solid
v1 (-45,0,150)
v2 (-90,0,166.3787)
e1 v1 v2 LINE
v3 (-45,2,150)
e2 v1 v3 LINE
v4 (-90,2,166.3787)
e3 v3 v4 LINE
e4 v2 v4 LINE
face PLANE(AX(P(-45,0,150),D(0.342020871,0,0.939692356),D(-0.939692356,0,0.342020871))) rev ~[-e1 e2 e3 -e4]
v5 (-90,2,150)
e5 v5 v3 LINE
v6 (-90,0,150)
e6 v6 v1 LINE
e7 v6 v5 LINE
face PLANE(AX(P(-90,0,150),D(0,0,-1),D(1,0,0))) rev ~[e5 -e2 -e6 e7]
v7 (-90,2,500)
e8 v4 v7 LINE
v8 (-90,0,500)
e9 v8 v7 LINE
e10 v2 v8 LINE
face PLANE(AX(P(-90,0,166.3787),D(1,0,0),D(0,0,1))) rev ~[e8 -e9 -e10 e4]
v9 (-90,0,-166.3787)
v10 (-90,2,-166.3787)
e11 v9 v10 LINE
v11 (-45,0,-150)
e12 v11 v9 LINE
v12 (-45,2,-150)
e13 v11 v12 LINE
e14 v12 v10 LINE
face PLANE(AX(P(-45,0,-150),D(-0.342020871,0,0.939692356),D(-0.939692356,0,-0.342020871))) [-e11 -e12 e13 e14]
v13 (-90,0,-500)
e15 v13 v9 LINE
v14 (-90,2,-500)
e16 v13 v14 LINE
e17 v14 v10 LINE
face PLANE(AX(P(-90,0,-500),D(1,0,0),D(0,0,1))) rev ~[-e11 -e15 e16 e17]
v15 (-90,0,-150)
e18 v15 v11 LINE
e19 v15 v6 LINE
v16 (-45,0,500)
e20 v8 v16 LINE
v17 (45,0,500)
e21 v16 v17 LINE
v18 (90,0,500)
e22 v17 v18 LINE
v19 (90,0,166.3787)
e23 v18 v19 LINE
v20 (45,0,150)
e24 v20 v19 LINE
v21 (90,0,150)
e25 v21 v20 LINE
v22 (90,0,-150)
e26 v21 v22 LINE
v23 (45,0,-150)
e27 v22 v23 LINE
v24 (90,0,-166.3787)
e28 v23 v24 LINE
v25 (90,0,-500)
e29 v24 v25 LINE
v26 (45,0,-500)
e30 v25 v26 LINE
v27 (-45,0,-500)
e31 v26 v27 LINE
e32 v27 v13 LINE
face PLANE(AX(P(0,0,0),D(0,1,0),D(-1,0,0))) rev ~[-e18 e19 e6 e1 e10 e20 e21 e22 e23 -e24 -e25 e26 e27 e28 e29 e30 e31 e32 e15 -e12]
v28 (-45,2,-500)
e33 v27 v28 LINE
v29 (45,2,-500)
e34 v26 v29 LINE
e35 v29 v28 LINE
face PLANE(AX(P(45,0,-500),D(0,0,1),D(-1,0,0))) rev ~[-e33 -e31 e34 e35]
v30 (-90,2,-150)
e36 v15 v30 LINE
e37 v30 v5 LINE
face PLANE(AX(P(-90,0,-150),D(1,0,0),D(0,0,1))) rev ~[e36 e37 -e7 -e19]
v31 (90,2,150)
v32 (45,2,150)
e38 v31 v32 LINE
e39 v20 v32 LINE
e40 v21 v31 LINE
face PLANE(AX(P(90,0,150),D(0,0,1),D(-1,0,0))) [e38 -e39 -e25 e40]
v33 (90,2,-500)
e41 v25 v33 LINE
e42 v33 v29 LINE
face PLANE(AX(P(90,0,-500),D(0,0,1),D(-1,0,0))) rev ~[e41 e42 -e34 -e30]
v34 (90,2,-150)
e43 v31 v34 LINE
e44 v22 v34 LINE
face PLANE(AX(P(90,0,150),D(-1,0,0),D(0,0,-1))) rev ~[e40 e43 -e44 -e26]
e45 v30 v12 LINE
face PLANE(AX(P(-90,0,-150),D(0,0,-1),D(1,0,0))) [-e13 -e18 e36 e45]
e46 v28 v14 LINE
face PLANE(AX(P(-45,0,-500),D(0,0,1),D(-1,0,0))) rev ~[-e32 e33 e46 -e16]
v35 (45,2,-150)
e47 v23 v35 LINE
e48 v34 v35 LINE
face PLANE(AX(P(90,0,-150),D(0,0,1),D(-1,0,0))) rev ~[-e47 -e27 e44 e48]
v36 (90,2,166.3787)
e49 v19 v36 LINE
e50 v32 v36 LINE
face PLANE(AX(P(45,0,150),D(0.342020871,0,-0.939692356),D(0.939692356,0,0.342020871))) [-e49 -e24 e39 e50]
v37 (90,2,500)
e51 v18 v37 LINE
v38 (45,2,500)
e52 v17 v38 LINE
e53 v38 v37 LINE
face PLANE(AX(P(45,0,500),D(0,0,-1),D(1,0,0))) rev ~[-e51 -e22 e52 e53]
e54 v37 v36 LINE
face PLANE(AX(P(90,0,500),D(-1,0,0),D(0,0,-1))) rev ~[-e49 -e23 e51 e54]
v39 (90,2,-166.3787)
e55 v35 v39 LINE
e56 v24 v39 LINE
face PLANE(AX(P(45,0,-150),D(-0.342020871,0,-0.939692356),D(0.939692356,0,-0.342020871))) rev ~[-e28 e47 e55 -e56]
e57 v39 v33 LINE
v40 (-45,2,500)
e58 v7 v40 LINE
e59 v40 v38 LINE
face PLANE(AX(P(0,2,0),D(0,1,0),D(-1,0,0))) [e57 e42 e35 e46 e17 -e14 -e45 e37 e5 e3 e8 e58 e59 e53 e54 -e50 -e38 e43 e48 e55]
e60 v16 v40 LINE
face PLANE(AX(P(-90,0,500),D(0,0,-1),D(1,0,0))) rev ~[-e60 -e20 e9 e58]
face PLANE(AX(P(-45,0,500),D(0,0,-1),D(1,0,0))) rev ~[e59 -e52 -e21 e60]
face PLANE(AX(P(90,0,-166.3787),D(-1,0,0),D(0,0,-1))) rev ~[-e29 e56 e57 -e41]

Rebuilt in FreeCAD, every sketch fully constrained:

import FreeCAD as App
import Part
import Sketcher
from FreeCAD import Vector
Q = App.Units.Quantity

doc = App.newDocument("Part")
body = doc.addObject("PartDesign::Body", "Body")

sketch1 = doc.addObject("Sketcher::SketchObject", "Sketch")
body.addObject(sketch1)
sketch1.AttachmentSupport = (doc.XZ_Plane, [""])
sketch1.MapMode = "FlatFace"
sketch1.addGeometry(Part.LineSegment(Vector(90, -166, 0), Vector(90, -500, 0)), False)
sketch1.addGeometry(Part.LineSegment(Vector(90, -500, 0), Vector(-90, -500, 0)), False)
sketch1.addGeometry(Part.LineSegment(Vector(-90, -500, 0), Vector(-90, -166, 0)), False)
sketch1.addGeometry(Part.LineSegment(Vector(-90, -166, 0), Vector(-45, -150, 0)), False)
sketch1.addGeometry(Part.LineSegment(Vector(-45, -150, 0), Vector(-90, -150, 0)), False)
sketch1.addGeometry(Part.LineSegment(Vector(-90, -150, 0), Vector(-90, 150, 0)), False)
sketch1.addGeometry(Part.LineSegment(Vector(-90, 150, 0), Vector(-45, 150, 0)), False)
sketch1.addGeometry(Part.LineSegment(Vector(-45, 150, 0), Vector(-90, 166, 0)), False)
sketch1.addGeometry(Part.LineSegment(Vector(-90, 166, 0), Vector(-90, 500, 0)), False)
sketch1.addGeometry(Part.LineSegment(Vector(-90, 500, 0), Vector(90, 500, 0)), False)
sketch1.addGeometry(Part.LineSegment(Vector(90, 500, 0), Vector(90, 166, 0)), False)
sketch1.addGeometry(Part.LineSegment(Vector(90, 166, 0), Vector(45, 150, 0)), False)
sketch1.addGeometry(Part.LineSegment(Vector(45, 150, 0), Vector(90, 150, 0)), False)
sketch1.addGeometry(Part.LineSegment(Vector(90, 150, 0), Vector(90, -150, 0)), False)
sketch1.addGeometry(Part.LineSegment(Vector(90, -150, 0), Vector(45, -150, 0)), False)
sketch1.addGeometry(Part.LineSegment(Vector(45, -150, 0), Vector(90, -166, 0)), False)
sketch1.addConstraint(Sketcher.Constraint("Coincident", 0, 2, 1, 1))
sketch1.addConstraint(Sketcher.Constraint("Coincident", 1, 2, 2, 1))
sketch1.addConstraint(Sketcher.Constraint("Coincident", 2, 2, 3, 1))
sketch1.addConstraint(Sketcher.Constraint("Coincident", 3, 2, 4, 1))
sketch1.addConstraint(Sketcher.Constraint("Coincident", 4, 2, 5, 1))
sketch1.addConstraint(Sketcher.Constraint("Coincident", 5, 2, 6, 1))
sketch1.addConstraint(Sketcher.Constraint("Coincident", 6, 2, 7, 1))
sketch1.addConstraint(Sketcher.Constraint("Coincident", 7, 2, 8, 1))
sketch1.addConstraint(Sketcher.Constraint("Coincident", 8, 2, 9, 1))
sketch1.addConstraint(Sketcher.Constraint("Coincident", 9, 2, 10, 1))
sketch1.addConstraint(Sketcher.Constraint("Coincident", 10, 2, 11, 1))
sketch1.addConstraint(Sketcher.Constraint("Coincident", 11, 2, 12, 1))
sketch1.addConstraint(Sketcher.Constraint("Coincident", 12, 2, 13, 1))
sketch1.addConstraint(Sketcher.Constraint("Coincident", 13, 2, 14, 1))
sketch1.addConstraint(Sketcher.Constraint("Coincident", 14, 2, 15, 1))
sketch1.addConstraint(Sketcher.Constraint("Coincident", 15, 2, 0, 1))
sketch1.addConstraint(Sketcher.Constraint("Vertical", 0))
sketch1.addConstraint(Sketcher.Constraint("Horizontal", 1))
sketch1.addConstraint(Sketcher.Constraint("Vertical", 2))
sketch1.addConstraint(Sketcher.Constraint("Horizontal", 4))
sketch1.addConstraint(Sketcher.Constraint("Vertical", 5))
sketch1.addConstraint(Sketcher.Constraint("Horizontal", 6))
sketch1.addConstraint(Sketcher.Constraint("Vertical", 8))
sketch1.addConstraint(Sketcher.Constraint("Horizontal", 9))
sketch1.addConstraint(Sketcher.Constraint("Vertical", 10))
sketch1.addConstraint(Sketcher.Constraint("Horizontal", 12))
sketch1.addConstraint(Sketcher.Constraint("Vertical", 13))
sketch1.addConstraint(Sketcher.Constraint("Horizontal", 14))
sketch1.addConstraint(Sketcher.Constraint("Symmetric", 0, 2, 8, 2, -1, 1))
sketch1.addConstraint(Sketcher.Constraint("Symmetric", 2, 2, 10, 2, -1, 1))
sketch1.addConstraint(Sketcher.Constraint("Symmetric", 3, 2, 11, 2, -1, 1))
sketch1.addConstraint(Sketcher.Constraint("Symmetric", 5, 2, 13, 2, -1, 1))
sketch1.addConstraint(Sketcher.Constraint("Symmetric", 7, 2, 10, 2, -2))
sketch1.addConstraint(Sketcher.Constraint("Symmetric", 6, 2, 11, 2, -2))
sketch1.addConstraint(Sketcher.Constraint("Parallel", 7, 15))
sketch1.addConstraint(Sketcher.Constraint("Horizontal", 2, 2, 15, 2))
sketch1.addConstraint(Sketcher.Constraint("Vertical", 2, 2, 4, 2))
sketch1.addConstraint(Sketcher.Constraint("DistanceX", 1, 2, 1, 1, 180.0))
sketch1.addConstraint(Sketcher.Constraint("DistanceY", 5, 1, 5, 2, 300.0))
sketch1.addConstraint(Sketcher.Constraint("Angle", 3, Q("20 deg")))
sketch1.addConstraint(Sketcher.Constraint("DistanceX", 6, 2, 11, 2, 90.0))
sketch1.addConstraint(Sketcher.Constraint("DistanceY", 0, 2, -1, 1, 500.0))
pad1 = doc.addObject("PartDesign::Pad", "Pad")
body.addObject(pad1)
pad1.Profile = sketch1
pad1.Length = 2
pad1.Reversed = True

doc.recompute()
